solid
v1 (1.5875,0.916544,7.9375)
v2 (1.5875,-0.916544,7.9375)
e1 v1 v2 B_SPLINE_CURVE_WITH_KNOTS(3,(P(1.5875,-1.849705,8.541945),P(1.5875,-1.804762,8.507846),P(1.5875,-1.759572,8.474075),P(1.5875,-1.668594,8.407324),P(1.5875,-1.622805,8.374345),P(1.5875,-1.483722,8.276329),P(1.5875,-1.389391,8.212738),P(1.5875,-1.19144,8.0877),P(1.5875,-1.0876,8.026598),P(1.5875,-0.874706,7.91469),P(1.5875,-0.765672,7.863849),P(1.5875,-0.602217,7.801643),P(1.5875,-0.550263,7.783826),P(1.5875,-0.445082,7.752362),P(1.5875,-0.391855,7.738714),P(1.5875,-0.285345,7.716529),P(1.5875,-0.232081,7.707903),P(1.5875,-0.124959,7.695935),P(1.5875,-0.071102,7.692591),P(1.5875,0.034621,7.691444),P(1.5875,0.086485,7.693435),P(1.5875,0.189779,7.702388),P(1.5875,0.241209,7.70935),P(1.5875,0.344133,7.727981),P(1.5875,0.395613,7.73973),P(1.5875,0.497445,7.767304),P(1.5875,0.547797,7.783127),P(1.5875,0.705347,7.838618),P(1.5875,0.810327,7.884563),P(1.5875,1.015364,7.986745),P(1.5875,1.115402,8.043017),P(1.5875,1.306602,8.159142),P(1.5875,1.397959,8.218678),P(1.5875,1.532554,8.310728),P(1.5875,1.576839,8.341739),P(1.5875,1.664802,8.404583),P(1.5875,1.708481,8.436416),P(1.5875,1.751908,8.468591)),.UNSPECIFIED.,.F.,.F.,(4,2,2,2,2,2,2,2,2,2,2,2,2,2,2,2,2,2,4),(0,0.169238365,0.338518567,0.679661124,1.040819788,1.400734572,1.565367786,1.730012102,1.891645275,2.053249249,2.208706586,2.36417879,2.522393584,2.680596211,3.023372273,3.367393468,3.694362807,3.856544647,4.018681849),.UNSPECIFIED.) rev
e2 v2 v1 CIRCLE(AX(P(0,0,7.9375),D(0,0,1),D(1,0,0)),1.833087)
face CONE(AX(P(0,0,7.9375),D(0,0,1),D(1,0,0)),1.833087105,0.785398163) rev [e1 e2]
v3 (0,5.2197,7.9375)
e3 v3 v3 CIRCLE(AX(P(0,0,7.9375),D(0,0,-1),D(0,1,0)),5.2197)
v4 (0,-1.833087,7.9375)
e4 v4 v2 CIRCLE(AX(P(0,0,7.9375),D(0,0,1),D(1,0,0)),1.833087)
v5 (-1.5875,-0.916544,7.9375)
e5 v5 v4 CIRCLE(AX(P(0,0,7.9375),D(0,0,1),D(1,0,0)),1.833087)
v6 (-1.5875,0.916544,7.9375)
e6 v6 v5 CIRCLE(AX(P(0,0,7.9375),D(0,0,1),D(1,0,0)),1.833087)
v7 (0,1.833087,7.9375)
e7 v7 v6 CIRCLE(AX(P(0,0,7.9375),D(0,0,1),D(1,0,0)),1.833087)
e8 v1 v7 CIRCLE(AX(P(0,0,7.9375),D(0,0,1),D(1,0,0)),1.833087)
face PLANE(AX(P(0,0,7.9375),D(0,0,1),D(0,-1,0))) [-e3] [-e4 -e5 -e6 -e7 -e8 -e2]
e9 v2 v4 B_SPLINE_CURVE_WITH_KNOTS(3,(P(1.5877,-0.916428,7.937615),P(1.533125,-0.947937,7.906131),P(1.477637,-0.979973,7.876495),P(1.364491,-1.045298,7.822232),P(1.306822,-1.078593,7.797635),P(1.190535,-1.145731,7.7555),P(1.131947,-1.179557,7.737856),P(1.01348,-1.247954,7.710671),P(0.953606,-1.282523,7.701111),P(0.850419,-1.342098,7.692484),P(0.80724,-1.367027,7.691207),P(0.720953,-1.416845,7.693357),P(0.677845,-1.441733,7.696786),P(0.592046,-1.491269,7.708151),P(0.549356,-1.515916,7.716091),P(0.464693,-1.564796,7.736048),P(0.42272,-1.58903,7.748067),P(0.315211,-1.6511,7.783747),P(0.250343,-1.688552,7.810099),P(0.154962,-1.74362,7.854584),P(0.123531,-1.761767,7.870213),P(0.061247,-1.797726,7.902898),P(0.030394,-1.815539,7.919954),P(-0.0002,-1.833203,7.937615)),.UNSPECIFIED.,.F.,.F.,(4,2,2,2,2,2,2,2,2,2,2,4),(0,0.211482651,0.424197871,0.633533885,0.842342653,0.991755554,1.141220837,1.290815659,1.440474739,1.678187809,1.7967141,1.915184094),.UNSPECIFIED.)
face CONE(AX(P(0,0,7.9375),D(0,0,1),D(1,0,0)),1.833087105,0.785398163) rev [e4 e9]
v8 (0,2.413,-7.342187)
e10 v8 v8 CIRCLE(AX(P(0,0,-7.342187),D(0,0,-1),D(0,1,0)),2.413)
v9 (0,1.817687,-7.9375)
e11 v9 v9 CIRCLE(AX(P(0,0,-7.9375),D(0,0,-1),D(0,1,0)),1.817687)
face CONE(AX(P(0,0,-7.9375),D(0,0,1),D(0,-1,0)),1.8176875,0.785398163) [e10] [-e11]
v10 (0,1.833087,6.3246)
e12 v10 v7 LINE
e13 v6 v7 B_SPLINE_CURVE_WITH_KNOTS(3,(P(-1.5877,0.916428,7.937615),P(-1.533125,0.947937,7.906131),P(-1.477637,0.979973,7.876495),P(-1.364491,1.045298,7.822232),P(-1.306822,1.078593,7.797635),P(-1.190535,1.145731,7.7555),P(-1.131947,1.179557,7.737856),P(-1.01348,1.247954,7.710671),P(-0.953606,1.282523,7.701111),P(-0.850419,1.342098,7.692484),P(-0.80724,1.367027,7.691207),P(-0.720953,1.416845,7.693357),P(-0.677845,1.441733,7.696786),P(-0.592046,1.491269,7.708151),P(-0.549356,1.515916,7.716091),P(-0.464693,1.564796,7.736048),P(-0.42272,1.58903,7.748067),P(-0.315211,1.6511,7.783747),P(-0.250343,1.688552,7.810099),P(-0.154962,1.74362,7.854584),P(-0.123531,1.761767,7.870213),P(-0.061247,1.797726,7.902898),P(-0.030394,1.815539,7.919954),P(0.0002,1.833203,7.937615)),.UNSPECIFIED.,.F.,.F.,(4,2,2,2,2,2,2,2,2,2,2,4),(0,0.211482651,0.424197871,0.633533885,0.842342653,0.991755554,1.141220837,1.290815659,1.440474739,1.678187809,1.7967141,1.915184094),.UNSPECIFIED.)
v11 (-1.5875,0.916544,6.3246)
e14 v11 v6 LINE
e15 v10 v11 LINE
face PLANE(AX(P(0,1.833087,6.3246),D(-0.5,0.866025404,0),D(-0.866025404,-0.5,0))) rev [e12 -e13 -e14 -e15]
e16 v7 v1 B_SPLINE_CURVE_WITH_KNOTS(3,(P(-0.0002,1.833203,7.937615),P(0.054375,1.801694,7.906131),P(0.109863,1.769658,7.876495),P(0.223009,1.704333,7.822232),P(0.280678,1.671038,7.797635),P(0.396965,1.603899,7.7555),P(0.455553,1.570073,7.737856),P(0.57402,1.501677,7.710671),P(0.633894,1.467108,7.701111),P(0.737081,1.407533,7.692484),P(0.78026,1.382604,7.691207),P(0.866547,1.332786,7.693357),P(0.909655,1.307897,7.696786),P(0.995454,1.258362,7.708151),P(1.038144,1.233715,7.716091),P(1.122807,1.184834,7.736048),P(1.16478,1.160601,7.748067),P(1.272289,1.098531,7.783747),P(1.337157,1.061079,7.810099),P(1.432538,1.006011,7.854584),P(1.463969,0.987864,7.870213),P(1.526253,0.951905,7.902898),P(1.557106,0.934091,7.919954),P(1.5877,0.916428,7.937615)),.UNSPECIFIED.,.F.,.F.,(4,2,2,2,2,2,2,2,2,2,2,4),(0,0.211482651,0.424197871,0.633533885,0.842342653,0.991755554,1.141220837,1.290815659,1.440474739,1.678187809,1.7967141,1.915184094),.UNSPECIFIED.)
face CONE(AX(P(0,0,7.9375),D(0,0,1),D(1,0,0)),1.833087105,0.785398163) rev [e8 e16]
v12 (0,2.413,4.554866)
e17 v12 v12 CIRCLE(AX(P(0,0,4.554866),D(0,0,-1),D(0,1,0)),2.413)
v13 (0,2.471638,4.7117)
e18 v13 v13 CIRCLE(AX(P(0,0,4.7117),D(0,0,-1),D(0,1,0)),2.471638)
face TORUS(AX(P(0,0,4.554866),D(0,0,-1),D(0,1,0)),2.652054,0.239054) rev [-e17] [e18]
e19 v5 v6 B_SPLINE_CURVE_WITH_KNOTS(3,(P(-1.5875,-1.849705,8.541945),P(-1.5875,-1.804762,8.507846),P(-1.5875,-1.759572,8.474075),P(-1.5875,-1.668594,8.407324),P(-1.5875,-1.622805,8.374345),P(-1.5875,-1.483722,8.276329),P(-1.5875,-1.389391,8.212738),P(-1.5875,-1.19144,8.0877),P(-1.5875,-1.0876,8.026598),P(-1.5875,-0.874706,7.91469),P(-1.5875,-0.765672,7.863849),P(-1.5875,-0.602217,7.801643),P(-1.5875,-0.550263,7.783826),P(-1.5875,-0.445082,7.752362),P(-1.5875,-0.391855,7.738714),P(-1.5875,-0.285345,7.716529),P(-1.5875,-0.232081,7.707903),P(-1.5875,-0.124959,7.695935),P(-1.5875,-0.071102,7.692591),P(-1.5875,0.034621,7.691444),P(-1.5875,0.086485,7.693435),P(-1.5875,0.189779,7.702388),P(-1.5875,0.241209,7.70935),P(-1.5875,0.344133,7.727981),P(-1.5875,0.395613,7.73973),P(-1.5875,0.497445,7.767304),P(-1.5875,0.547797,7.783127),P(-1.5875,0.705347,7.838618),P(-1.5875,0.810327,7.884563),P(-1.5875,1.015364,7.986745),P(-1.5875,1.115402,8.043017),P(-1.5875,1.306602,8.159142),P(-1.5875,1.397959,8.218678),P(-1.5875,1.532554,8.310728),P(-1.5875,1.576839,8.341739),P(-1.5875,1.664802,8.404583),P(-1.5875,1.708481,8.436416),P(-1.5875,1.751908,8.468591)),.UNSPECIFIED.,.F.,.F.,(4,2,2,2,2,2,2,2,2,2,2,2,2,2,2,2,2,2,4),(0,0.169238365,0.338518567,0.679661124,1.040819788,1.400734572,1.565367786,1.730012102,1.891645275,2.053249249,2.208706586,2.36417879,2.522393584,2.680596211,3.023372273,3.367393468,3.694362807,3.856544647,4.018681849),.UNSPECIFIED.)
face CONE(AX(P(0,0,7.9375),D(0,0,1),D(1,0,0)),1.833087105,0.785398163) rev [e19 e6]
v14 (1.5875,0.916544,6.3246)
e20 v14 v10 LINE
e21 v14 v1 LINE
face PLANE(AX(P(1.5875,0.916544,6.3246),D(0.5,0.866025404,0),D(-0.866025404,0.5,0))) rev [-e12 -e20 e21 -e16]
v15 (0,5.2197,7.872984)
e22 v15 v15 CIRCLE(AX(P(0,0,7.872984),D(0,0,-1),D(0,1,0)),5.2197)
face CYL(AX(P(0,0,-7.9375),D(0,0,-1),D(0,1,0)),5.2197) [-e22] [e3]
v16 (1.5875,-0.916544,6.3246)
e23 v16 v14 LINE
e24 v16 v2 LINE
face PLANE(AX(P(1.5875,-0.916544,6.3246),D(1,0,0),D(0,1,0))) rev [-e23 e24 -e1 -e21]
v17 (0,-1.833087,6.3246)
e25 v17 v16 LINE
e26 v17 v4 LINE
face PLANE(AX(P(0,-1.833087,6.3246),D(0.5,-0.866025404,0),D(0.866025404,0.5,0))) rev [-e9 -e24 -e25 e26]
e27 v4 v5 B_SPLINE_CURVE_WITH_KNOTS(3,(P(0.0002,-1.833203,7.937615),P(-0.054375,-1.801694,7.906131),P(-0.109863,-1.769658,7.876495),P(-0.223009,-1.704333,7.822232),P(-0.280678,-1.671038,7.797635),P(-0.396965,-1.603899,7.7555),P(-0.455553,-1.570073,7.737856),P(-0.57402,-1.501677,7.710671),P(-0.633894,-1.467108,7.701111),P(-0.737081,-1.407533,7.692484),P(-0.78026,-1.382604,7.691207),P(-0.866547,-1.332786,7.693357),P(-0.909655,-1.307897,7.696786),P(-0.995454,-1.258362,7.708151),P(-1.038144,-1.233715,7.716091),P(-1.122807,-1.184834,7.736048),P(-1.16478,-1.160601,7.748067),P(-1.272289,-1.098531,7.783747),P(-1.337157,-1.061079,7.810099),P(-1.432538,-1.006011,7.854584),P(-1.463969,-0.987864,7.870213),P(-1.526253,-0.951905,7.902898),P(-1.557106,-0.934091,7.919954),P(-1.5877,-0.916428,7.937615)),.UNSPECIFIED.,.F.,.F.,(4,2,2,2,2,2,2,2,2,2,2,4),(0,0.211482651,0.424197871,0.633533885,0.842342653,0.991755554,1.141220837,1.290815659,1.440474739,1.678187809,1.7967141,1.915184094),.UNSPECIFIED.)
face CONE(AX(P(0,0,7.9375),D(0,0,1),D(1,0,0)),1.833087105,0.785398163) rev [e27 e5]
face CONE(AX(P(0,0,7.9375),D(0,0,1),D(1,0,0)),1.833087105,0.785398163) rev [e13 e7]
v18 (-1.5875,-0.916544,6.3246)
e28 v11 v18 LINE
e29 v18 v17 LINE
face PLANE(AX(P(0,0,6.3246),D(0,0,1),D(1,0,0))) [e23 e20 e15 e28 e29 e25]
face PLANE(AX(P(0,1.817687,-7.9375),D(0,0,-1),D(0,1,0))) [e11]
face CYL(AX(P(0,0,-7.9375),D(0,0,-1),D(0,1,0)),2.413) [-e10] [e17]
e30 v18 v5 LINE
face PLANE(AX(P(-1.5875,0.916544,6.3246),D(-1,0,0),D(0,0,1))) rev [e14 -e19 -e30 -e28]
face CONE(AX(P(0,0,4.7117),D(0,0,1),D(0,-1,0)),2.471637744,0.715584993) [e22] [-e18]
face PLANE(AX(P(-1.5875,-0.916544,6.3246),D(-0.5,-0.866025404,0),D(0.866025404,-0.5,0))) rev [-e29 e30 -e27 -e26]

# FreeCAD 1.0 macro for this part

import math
import FreeCAD as App
import Part
import Sketcher

V = App.Vector
Q = App.Units.Quantity


def faces_at(feature, points):
    """Names of the faces that lie closest to the given points."""
    faces = feature.Shape.Faces
    near = lambda p: min(range(len(faces)), key=lambda i: faces[i].distToShape(Part.Vertex(*p))[0])
    return sorted({f"Face{near(p) + 1}" for p in points})

doc = App.newDocument("Part")
params = doc.addObject("Spreadsheet::Sheet", "Params")
for row, (alias, value) in enumerate([
    ("sketch1_height", "0.625 in"),
    ("revolution_angle", "360 deg"),
    ("pad1_length", "0.0635 in"),
    ("draft_angle", "45 deg"),
    ("pocket1_length", "0.0635 in"),
], start=1):
    params.set(f"A{row}", alias)
    params.set(f"B{row}", "=" + value)
    params.setAlias(f"B{row}", alias)

body = doc.addObject("PartDesign::Body", "Body")

sketch1 = body.newObject("Sketcher::SketchObject", "Sketch")
sketch1.AttachmentSupport = (doc.getObject("YZ_Plane"), [""])
sketch1.MapMode = "FlatFace"
sketch1.addGeometry([
    Part.LineSegment(V(2.47, 4.71, 0), V(5.22, 7.87, 0)),
    Part.LineSegment(V(5.22, 7.87, 0), V(5.22, 7.94, 0)),
    Part.LineSegment(V(5.22, 7.94, 0), V(0, 7.94, 0)),
    Part.LineSegment(V(0, 7.94, 0), V(0, -7.94, 0)),
    Part.LineSegment(V(0, -7.94, 0), V(1.82, -7.94, 0)),
    Part.LineSegment(V(1.82, -7.94, 0), V(2.41, -7.34, 0)),
    Part.LineSegment(V(2.41, -7.34, 0), V(2.41, 4.55, 0)),
    Part.ArcOfCircle(Part.Circle(V(2.65, 4.55, 0), V(0, 0, 1), 0.24), math.radians(139), math.radians(180)),
], False)
sketch1.addConstraint([
    Sketcher.Constraint("Coincident", 0, 2, 1, 1),
    Sketcher.Constraint("Coincident", 1, 2, 2, 1),
    Sketcher.Constraint("Coincident", 2, 2, 3, 1),
    Sketcher.Constraint("Coincident", 3, 2, 4, 1),
    Sketcher.Constraint("Coincident", 4, 2, 5, 1),
    Sketcher.Constraint("Coincident", 5, 2, 6, 1),
    Sketcher.Constraint("Tangent", 6, 2, 7, 2),
    Sketcher.Constraint("Tangent", 7, 1, 0, 1),
    Sketcher.Constraint("Vertical", 1),
    Sketcher.Constraint("Horizontal", 2),
    Sketcher.Constraint("Vertical", 3),
    Sketcher.Constraint("Horizontal", 4),
    Sketcher.Constraint("Vertical", 6),
    Sketcher.Constraint("Symmetric", 2, 2, 3, 2, -1, 1),
    Sketcher.Constraint("Angle", 0, Q("49 deg")),
    Sketcher.Constraint("Angle", 5, Q("45 deg")),
    Sketcher.Constraint("DistanceY", 3, 2, 3, 1, Q("0.625 in")),
    Sketcher.Constraint("DistanceX", 2, 2, 2, 1, Q("0.2055 in")),
    Sketcher.Constraint("DistanceX", -1, 1, 5, 2, Q("0.095 in")),
    Sketcher.Constraint("DistanceY", 7, 1, 2, 2, Q("0.127 in")),
    Sketcher.Constraint("Radius", 7, Q("0.239054 mm")),
    Sketcher.Constraint("Distance", 5, Q("0.841899 mm")),
])
sketch1.setExpression("Constraints[16]", "Params.sketch1_height")
revolution = body.newObject("PartDesign::Revolution", "Revolution")
revolution.Profile = sketch1
revolution.ReferenceAxis = (sketch1, ["V_Axis"])
revolution.setExpression("Angle", "Params.revolution_angle")
body2 = doc.addObject("PartDesign::Body", "Body001")

sketch2 = body2.newObject("Sketcher::SketchObject", "Sketch001")
sketch2.AttachmentSupport = (doc.getObject("XY_Plane001"), [""])
sketch2.MapMode = "FlatFace"
sketch2.AttachmentOffset = App.Placement(V(0, 0, 0.3125 * 25.4), App.Rotation())
sketch2.addGeometry(Part.Circle(V(0, 0, 0), V(0, 0, 1), 1.8), False)
sketch2.addConstraint([
    Sketcher.Constraint("Coincident", 0, 3, -1, 1),
    Sketcher.Constraint("Diameter", 0, Q("3.666174 mm")),
])
pad1 = body2.newObject("PartDesign::Pad", "Pad")
pad1.Profile = sketch2
pad1.setExpression("Length", "Params.pad1_length")
pad1.Reversed = True
doc.recompute()

datumplane = body2.newObject("PartDesign::Plane", "DatumPlane")
datumplane.AttachmentSupport = (doc.getObject("XY_Plane001"), [""])
datumplane.MapMode = "FlatFace"
datumplane.AttachmentOffset = App.Placement(V(0, 0, 0.3125 * 25.4), App.Rotation())
draft = body2.newObject("PartDesign::Draft", "Draft")
draft.Base = (pad1, faces_at(pad1, [(-1.833, 0, 7.131)]))
draft.NeutralPlane = (datumplane, [""])
draft.setExpression("Angle", "Params.draft_angle")
draft.Reversed = True
doc.recompute()

boolean = body.newObject("PartDesign::Boolean", "Boolean")
boolean.Type = "Cut"
boolean.addObjects([body2])

sketch3 = body.newObject("Sketcher::SketchObject", "Sketch002")
sketch3.AttachmentSupport = (doc.getObject("XY_Plane"), [""])
sketch3.MapMode = "FlatFace"
sketch3.AttachmentOffset = App.Placement(V(0, 0, 0.3125 * 25.4), App.Rotation())
sketch3.addGeometry([
    Part.LineSegment(V(1.6, -0.9, 0), V(1.6, 0.9, 0)),
    Part.LineSegment(V(1.6, 0.9, 0), V(0, 1.8, 0)),
    Part.LineSegment(V(0, 1.8, 0), V(-1.6, 0.9, 0)),
    Part.LineSegment(V(-1.6, 0.9, 0), V(-1.6, -0.9, 0)),
    Part.LineSegment(V(-1.6, -0.9, 0), V(0, -1.8, 0)),
    Part.LineSegment(V(0, -1.8, 0), V(1.6, -0.9, 0)),
], False)
sketch3.addConstraint([
    Sketcher.Constraint("Coincident", 0, 2, 1, 1),
    Sketcher.Constraint("Coincident", 1, 2, 2, 1),
    Sketcher.Constraint("Coincident", 2, 2, 3, 1),
    Sketcher.Constraint("Coincident", 3, 2, 4, 1),
    Sketcher.Constraint("Coincident", 4, 2, 5, 1),
    Sketcher.Constraint("Coincident", 5, 2, 0, 1),
    Sketcher.Constraint("Vertical", 0),
    Sketcher.Constraint("Vertical", 3),
    Sketcher.Constraint("Symmetric", 0, 2, 3, 2, -1, 1),
    Sketcher.Constraint("Symmetric", 1, 2, 4, 2, -1, 1),
    Sketcher.Constraint("PointOnObject", 1, 2, -2),
    Sketcher.Constraint("Parallel", 2, 5),
    Sketcher.Constraint("Horizontal", 0, 2, 2, 2),
    Sketcher.Constraint("Angle", 1, Q("150 deg")),
    Sketcher.Constraint("DistanceX", -1, 1, 0, 2, Q("0.0625 in")),
    Sketcher.Constraint("DistanceY", 0, 1, 0, 2, Q("1.833087 mm")),
])
pocket1 = body.newObject("PartDesign::Pocket", "Pocket")
pocket1.Profile = sketch3
pocket1.setExpression("Length", "Params.pocket1_length")

doc.recompute()
